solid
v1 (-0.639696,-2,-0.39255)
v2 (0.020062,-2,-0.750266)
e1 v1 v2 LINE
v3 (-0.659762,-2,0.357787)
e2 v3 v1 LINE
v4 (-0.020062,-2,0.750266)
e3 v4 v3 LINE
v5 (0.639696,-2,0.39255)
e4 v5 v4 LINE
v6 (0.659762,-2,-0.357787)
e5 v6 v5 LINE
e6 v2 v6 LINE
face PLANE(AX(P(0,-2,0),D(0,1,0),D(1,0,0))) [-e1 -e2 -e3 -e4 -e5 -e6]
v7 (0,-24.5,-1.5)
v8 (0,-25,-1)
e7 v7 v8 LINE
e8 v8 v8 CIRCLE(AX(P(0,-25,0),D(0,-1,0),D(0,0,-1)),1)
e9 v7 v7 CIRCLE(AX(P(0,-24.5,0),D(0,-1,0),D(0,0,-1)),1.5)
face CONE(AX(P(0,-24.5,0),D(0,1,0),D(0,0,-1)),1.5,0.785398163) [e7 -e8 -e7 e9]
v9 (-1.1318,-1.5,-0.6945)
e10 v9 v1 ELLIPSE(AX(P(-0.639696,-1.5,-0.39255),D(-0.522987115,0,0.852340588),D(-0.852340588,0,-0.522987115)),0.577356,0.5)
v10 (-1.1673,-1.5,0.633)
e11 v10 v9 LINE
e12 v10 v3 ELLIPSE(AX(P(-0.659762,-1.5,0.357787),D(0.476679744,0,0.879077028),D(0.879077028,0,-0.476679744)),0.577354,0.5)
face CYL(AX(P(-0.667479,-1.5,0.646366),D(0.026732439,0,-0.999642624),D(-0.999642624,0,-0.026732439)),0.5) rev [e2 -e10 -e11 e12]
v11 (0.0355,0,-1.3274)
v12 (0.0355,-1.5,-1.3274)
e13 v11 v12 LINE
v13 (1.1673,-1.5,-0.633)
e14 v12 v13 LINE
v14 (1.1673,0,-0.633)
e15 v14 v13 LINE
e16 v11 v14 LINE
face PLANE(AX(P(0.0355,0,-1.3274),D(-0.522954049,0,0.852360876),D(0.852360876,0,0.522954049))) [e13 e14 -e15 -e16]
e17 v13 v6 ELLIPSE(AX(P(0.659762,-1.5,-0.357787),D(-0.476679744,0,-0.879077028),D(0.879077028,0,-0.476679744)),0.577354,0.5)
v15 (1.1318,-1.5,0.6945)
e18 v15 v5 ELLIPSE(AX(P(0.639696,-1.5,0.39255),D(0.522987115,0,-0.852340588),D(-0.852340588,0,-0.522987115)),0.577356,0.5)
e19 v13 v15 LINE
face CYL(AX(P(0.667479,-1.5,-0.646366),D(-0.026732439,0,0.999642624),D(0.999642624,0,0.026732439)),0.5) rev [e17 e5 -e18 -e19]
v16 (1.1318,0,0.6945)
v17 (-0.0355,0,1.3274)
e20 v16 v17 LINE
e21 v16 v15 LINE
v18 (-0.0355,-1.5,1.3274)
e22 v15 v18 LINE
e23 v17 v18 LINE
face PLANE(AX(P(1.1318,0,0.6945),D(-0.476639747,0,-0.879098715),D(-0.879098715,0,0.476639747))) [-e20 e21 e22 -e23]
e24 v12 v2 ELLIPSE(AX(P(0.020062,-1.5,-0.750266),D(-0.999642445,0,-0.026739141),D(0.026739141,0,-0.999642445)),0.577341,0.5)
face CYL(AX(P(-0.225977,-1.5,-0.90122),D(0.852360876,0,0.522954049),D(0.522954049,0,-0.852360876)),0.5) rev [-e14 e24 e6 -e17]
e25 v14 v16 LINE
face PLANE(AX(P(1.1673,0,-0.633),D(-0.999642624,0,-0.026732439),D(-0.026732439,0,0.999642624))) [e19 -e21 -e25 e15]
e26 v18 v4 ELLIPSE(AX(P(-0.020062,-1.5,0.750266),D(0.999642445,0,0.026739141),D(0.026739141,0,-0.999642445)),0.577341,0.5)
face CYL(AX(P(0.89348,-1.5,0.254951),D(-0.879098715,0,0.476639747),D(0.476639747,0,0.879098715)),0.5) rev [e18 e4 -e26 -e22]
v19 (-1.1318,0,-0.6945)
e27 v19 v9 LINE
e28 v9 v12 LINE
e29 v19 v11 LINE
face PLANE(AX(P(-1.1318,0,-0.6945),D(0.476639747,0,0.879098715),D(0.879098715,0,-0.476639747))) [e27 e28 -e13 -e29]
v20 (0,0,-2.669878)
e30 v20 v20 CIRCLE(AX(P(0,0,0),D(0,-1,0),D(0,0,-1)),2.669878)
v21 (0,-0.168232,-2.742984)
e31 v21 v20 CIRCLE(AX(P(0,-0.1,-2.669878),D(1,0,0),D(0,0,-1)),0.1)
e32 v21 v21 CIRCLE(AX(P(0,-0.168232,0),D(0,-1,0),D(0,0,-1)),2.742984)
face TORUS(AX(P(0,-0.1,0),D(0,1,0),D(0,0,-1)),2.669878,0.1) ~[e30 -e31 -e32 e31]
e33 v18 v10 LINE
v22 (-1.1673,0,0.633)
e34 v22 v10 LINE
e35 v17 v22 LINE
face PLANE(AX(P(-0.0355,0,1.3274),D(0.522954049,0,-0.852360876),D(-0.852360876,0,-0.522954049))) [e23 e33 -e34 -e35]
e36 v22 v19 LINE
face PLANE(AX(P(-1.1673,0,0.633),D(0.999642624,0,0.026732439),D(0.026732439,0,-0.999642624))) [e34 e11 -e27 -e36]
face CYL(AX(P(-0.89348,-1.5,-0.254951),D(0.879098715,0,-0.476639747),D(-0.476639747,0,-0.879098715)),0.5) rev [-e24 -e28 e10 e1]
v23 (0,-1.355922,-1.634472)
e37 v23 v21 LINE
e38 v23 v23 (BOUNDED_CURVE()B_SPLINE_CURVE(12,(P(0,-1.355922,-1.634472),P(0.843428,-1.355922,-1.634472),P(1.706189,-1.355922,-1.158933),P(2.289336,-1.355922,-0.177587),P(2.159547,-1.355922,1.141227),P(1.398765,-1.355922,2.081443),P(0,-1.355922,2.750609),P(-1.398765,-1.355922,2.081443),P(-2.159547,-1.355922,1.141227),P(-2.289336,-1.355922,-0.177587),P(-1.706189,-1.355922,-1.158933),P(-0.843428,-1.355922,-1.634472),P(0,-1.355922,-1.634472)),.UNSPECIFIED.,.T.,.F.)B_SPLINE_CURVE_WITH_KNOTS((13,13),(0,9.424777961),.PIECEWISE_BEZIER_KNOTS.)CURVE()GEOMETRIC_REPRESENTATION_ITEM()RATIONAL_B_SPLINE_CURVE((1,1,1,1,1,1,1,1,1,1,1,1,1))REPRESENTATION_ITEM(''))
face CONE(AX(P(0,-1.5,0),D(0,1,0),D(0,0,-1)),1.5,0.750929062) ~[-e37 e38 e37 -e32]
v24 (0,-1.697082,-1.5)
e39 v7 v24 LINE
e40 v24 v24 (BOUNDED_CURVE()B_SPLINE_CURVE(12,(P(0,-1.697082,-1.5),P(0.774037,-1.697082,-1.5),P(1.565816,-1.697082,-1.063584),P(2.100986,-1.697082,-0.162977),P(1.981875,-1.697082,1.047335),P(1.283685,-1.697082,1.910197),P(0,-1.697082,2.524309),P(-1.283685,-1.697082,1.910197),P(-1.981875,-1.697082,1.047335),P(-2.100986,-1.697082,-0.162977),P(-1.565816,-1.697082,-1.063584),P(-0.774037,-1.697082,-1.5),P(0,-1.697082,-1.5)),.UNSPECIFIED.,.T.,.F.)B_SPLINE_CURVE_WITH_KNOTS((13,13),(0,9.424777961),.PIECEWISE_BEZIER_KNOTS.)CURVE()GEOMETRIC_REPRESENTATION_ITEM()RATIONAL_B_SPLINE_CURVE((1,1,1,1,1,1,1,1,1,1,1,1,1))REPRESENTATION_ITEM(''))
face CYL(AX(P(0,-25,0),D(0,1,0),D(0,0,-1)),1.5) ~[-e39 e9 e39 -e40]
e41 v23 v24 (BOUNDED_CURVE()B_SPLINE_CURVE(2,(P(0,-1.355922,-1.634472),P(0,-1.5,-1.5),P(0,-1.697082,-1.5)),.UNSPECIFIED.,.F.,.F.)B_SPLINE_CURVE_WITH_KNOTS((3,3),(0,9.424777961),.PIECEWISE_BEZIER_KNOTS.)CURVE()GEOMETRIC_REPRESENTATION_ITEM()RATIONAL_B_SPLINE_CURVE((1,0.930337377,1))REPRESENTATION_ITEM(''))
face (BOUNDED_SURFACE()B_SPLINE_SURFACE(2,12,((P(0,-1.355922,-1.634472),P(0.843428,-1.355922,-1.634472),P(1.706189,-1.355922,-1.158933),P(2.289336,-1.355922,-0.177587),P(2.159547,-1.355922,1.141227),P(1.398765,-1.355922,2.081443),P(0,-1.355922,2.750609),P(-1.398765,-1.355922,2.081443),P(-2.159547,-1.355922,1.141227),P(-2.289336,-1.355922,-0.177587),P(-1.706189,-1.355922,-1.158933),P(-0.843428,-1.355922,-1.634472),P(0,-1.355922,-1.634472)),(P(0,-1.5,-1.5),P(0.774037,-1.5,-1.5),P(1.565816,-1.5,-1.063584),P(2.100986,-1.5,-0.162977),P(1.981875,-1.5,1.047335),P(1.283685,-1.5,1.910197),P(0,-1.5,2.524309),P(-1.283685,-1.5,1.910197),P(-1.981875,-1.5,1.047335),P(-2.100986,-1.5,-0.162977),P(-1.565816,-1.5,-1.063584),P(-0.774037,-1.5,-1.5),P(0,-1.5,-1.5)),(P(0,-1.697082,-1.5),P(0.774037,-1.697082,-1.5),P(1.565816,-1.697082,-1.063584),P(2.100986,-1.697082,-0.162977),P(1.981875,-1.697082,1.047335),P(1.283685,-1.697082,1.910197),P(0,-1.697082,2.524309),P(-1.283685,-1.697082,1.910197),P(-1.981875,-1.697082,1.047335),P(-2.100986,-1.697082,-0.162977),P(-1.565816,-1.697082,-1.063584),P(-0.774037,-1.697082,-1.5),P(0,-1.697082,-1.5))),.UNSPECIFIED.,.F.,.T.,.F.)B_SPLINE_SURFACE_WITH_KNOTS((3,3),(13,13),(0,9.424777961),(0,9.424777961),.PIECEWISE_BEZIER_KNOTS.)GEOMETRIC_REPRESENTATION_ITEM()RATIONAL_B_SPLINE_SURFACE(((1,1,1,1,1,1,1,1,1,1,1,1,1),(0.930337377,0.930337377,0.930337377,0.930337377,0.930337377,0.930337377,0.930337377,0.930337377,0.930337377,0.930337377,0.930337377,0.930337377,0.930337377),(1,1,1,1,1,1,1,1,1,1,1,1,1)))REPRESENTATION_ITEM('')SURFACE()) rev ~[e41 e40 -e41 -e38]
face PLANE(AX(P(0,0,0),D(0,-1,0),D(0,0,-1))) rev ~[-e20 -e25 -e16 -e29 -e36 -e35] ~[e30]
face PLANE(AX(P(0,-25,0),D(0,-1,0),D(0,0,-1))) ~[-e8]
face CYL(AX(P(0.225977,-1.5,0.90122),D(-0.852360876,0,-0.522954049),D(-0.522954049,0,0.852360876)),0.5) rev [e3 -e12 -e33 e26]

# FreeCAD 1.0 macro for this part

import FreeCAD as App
import Part
import Sketcher
from FreeCAD import Vector
Q = App.Units.Quantity


def edges_at(feature, points):
    """Names of the edges that pass closest to the given points."""
    edges = feature.Shape.Edges
    near = lambda p: min(range(len(edges)), key=lambda i: edges[i].distToShape(Part.Vertex(*p))[0])
    return sorted({f"Edge{near(p) + 1}" for p in points})

doc = App.newDocument("Part")
params = doc.addObject("Spreadsheet::Sheet", "Params")
for row, (alias, value) in enumerate([
    ("sketch1_width", "25 mm"),
    ("sketch1_height", "1.5 mm"),
    ("sketch1_height2", "2.9 mm"),
    ("revolution_angle", "360 deg"),
    ("pocket1_length", "2 mm"),
    ("fillet_radius", "0.5 mm"),
    ("fillet2_radius", "0.5 mm"),
    ("fillet3_radius", "0.1 mm"),
    ("chamfer_size", "0.5 mm"),
], start=1):
    params.set(f"A{row}", alias)
    params.set(f"B{row}", "=" + value)
    params.setAlias(f"B{row}", alias)

body = doc.addObject("PartDesign::Body", "Body")

# Sketch on YZ plane
sketch1 = body.newObject("Sketcher::SketchObject", "Sketch")
sketch1.AttachmentSupport = (doc.getObject("YZ_Plane"), [""])
sketch1.MapMode = "FlatFace"
sketch1.addGeometry([
    Part.LineSegment(Vector(-1.5, -1.5, 0), Vector(0, -2.9, 0)),  # 0
    Part.LineSegment(Vector(0, -2.9, 0), Vector(0, 0, 0)),  # 1
    Part.LineSegment(Vector(0, 0, 0), Vector(-25, 0, 0)),  # 2
    Part.LineSegment(Vector(-25, 0, 0), Vector(-25, -1.5, 0)),  # 3
    Part.LineSegment(Vector(-25, -1.5, 0), Vector(-1.5, -1.5, 0)),  # 4
], False)
sketch1.addConstraint([
    Sketcher.Constraint("Coincident", 0, 2, 1, 1),
    Sketcher.Constraint("Coincident", 1, 2, 2, 1),
    Sketcher.Constraint("Coincident", 2, 2, 3, 1),
    Sketcher.Constraint("Coincident", 3, 2, 4, 1),
    Sketcher.Constraint("Coincident", 4, 2, 0, 1),
    Sketcher.Constraint("Vertical", 1),
    Sketcher.Constraint("Horizontal", 2),
    Sketcher.Constraint("Vertical", 3),
    Sketcher.Constraint("Horizontal", 4),
    Sketcher.Constraint("Coincident", 1, 2, -1, 1),
    Sketcher.Constraint("DistanceX", 2, 2, 2, 1, 25.0),
    Sketcher.Constraint("DistanceY", 3, 2, 3, 1, 1.5),
    Sketcher.Constraint("DistanceX", 4, 2, -1, 1, 1.5),
    Sketcher.Constraint("DistanceY", 1, 1, 1, 2, 2.9),
])
sketch1.setExpression("Constraints[10]", "Params.sketch1_width")
sketch1.setExpression("Constraints[11]", "Params.sketch1_height")
sketch1.setExpression("Constraints[13]", "Params.sketch1_height2")
revolution = body.newObject("PartDesign::Revolution", "Revolution")
revolution.Profile = sketch1
revolution.ReferenceAxis = (sketch1, ["H_Axis"])
revolution.setExpression("Angle", "Params.revolution_angle")

# Sketch on XZ plane
sketch2 = body.newObject("Sketcher::SketchObject", "Sketch001")
sketch2.AttachmentSupport = (doc.getObject("XZ_Plane"), [""])
sketch2.MapMode = "FlatFace"
sketch2.addGeometry([
    Part.LineSegment(Vector(-1.1, -0.7, 0), Vector(-1.2, 0.6, 0)),  # 0
    Part.LineSegment(Vector(-1.2, 0.6, 0), Vector(0, 1.3, 0)),  # 1
    Part.LineSegment(Vector(0, 1.3, 0), Vector(1.1, 0.7, 0)),  # 2
    Part.LineSegment(Vector(1.1, 0.7, 0), Vector(1.2, -0.6, 0)),  # 3
    Part.LineSegment(Vector(1.2, -0.6, 0), Vector(0, -1.3, 0)),  # 4
    Part.LineSegment(Vector(0, -1.3, 0), Vector(-1.1, -0.7, 0)),  # 5
], False)
sketch2.addConstraint([
    Sketcher.Constraint("Coincident", 0, 2, 1, 1),
    Sketcher.Constraint("Coincident", 1, 2, 2, 1),
    Sketcher.Constraint("Coincident", 2, 2, 3, 1),
    Sketcher.Constraint("Coincident", 3, 2, 4, 1),
    Sketcher.Constraint("Coincident", 4, 2, 5, 1),
    Sketcher.Constraint("Coincident", 5, 2, 0, 1),
    Sketcher.Constraint("Symmetric", 0, 2, 3, 2, -1, 1),
    Sketcher.Constraint("Symmetric", 1, 2, 4, 2, -1, 1),
    Sketcher.Constraint("Symmetric", 2, 2, 5, 2, -1, 1),
    Sketcher.Constraint("Equal", 0, 1),
    Sketcher.Constraint("Equal", 1, 2),
    Sketcher.Constraint("Angle", 1, Q("31.5306 deg")),
    Sketcher.Constraint("Distance", 0, 1.328),
    Sketcher.Constraint("DistanceY", -1, 1, 0, 2, 0.633),
    Sketcher.Constraint("DistanceY", 2, 2, 1, 2, 0.633),
])
pocket1 = body.newObject("PartDesign::Pocket", "Pocket")
pocket1.Profile = sketch2
pocket1.setExpression("Length", "Params.pocket1_length")
pocket1.Reversed = True
doc.recompute()

fillet = body.newObject("PartDesign::Fillet", "Fillet")
fillet.Base = (pocket1, edges_at(pocket1, [
    (-1.15, -2, -0.031),
    (-0.601, -2, 0.98),
    (-0.548, -2, -1.011),
    (0.601, -2, -0.98),
    (0.548, -2, 1.011),
    (1.15, -2, 0.031),
]))
fillet.setExpression("Radius", "Params.fillet_radius")
doc.recompute()

fillet2 = body.newObject("PartDesign::Fillet", "Fillet001")
fillet2.Base = (fillet, edges_at(fillet, [(0, -1.5, 1.5)]))
fillet2.setExpression("Radius", "Params.fillet2_radius")
doc.recompute()

fillet3 = body.newObject("PartDesign::Fillet", "Fillet002")
fillet3.Base = (fillet2, edges_at(fillet2, [(0, 0, 2.9)]))
fillet3.setExpression("Radius", "Params.fillet3_radius")
doc.recompute()

chamfer = body.newObject("PartDesign::Chamfer", "Chamfer")
chamfer.Base = (fillet3, edges_at(fillet3, [(0, -25, 1.5)]))
chamfer.setExpression("Size", "Params.chamfer_size")

doc.recompute()
